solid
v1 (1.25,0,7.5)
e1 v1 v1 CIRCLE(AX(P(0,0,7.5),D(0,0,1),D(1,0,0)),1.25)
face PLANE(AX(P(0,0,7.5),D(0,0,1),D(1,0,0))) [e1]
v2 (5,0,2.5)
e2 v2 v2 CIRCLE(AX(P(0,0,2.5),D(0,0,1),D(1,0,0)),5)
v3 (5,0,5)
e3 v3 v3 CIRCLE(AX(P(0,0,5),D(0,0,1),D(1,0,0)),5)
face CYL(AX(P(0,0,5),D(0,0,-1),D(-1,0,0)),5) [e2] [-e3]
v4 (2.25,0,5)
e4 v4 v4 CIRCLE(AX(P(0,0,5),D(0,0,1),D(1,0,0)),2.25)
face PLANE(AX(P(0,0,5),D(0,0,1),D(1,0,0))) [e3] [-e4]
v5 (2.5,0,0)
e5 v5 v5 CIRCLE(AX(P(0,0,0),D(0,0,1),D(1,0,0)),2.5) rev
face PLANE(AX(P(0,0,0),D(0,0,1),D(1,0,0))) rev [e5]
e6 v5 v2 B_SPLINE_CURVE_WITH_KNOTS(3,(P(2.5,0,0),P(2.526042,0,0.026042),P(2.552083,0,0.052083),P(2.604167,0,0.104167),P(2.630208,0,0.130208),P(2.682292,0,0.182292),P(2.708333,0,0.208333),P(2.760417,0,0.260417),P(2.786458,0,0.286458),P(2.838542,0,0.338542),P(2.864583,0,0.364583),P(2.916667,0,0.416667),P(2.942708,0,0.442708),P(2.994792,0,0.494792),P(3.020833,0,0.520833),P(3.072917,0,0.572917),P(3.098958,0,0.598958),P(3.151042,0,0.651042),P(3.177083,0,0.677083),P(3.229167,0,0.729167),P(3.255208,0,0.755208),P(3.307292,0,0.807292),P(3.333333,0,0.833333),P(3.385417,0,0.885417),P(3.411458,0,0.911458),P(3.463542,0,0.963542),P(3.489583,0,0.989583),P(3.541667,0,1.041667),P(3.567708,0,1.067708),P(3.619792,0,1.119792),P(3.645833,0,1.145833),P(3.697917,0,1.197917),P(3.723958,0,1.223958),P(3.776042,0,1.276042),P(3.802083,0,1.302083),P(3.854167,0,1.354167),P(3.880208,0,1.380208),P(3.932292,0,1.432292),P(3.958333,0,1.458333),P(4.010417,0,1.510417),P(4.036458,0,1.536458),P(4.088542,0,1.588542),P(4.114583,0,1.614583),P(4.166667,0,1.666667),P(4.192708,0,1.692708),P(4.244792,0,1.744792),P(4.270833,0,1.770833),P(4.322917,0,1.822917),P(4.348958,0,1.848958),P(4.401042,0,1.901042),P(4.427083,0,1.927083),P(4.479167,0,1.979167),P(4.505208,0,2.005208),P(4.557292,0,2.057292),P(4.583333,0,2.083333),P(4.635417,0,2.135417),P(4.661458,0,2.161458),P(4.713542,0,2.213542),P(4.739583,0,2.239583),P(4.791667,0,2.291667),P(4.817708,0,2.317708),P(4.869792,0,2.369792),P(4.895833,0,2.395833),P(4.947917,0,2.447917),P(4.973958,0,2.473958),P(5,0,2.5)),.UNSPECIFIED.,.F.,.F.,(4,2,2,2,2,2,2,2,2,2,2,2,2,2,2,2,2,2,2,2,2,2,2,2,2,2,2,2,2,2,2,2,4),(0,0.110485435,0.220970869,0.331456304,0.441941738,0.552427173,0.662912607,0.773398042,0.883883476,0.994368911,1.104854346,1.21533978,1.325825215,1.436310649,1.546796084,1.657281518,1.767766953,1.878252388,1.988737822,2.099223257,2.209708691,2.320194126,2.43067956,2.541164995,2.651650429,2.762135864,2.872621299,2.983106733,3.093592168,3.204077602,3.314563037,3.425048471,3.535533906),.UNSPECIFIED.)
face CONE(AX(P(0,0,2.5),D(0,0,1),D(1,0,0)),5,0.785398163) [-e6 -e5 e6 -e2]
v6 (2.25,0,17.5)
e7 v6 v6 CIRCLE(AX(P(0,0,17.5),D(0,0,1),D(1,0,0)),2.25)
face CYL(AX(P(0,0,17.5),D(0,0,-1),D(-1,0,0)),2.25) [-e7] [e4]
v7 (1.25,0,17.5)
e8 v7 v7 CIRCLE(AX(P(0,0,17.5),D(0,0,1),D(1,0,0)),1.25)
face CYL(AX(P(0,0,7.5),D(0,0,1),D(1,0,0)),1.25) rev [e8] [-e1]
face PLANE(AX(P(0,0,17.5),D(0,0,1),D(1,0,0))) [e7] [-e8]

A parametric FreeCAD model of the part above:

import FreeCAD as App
import Part
import Sketcher

V = App.Vector


def edges_at(feature, points):
    """Names of the edges that pass closest to the given points."""
    edges = feature.Shape.Edges
    near = lambda p: min(range(len(edges)), key=lambda i: edges[i].distToShape(Part.Vertex(*p))[0])
    return sorted({f"Edge{near(p) + 1}" for p in points})

doc = App.newDocument("Part")
body = doc.addObject("PartDesign::Body", "Body")

# Sketch on XY plane
sketch1 = body.newObject("Sketcher::SketchObject", "Sketch")
sketch1.AttachmentSupport = (doc.getObject("XY_Plane"), [""])
sketch1.MapMode = "FlatFace"
sketch1.addGeometry(Part.Circle(V(0, 0, 0), V(0, 0, 1), 5), False)
sketch1.addConstraint(Sketcher.Constraint("Coincident", 0, 3, -1, 1))
sketch1.addConstraint(Sketcher.Constraint("Diameter", 0, 10.0))
pad1 = body.newObject("PartDesign::Pad", "Pad")
pad1.Profile = sketch1
pad1.Length = 5

# Sketch on XY plane
sketch2 = body.newObject("Sketcher::SketchObject", "Sketch001")
sketch2.AttachmentSupport = (doc.getObject("XY_Plane"), [""])
sketch2.MapMode = "FlatFace"
sketch2.AttachmentOffset = App.Placement(V(0, 0, 5), App.Rotation())
sketch2.addGeometry(Part.Circle(V(0, 0, 0), V(0, 0, 1), 2.2), False)
sketch2.addConstraint(Sketcher.Constraint("Coincident", 0, 3, -1, 1))
sketch2.addConstraint(Sketcher.Constraint("Diameter", 0, 4.5))
pad2 = body.newObject("PartDesign::Pad", "Pad001")
pad2.Profile = sketch2
pad2.Length = 12.5

# Sketch on XY plane
sketch3 = body.newObject("Sketcher::SketchObject", "Sketch002")
sketch3.AttachmentSupport = (doc.getObject("XY_Plane"), [""])
sketch3.MapMode = "FlatFace"
sketch3.AttachmentOffset = App.Placement(V(0, 0, 17.5), App.Rotation())
sketch3.addGeometry(Part.Circle(V(0, 0, 0), V(0, 0, 1), 1.2), False)
sketch3.addConstraint(Sketcher.Constraint("Coincident", 0, 3, -1, 1))
sketch3.addConstraint(Sketcher.Constraint("Diameter", 0, 2.5))
pocket1 = body.newObject("PartDesign::Pocket", "Pocket")
pocket1.Profile = sketch3
pocket1.Length = 10
doc.recompute()

chamfer = body.newObject("PartDesign::Chamfer", "Chamfer")
chamfer.Base = (pocket1, edges_at(pocket1, [(-5, 0, 0)]))
chamfer.Size = 2.5

doc.recompute()
